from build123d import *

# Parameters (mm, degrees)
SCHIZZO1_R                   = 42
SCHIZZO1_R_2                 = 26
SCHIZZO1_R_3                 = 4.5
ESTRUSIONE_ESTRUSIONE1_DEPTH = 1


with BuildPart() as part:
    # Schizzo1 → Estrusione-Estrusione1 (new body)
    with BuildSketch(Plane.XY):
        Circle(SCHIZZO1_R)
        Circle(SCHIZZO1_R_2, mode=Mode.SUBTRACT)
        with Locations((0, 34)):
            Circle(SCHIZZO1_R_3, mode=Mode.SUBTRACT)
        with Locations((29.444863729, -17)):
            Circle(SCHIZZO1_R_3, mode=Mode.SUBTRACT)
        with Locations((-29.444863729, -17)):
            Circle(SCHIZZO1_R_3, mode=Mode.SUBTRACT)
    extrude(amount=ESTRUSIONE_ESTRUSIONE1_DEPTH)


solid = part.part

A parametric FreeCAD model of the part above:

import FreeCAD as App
import Part
import Sketcher

V = App.Vector

doc = App.newDocument("Part")
body = doc.addObject("PartDesign::Body", "Body")

# Sketch on XY plane
sketch1 = body.newObject("Sketcher::SketchObject", "Sketch")
sketch1.AttachmentSupport = (doc.getObject("XY_Plane"), [""])
sketch1.MapMode = "FlatFace"
sketch1.addGeometry([
    Part.Circle(V(0, 0, 0), V(0, 0, 1), 42),  # 0
    Part.Circle(V(-29.4, -17, 0), V(0, 0, 1), 4.5),  # 1
    Part.Circle(V(29.4, -17, 0), V(0, 0, 1), 4.5),  # 2
    Part.Circle(V(0, 0, 0), V(0, 0, 1), 26),  # 3
    Part.Circle(V(0, 34, 0), V(0, 0, 1), 4.5),  # 4
], False)
sketch1.addConstraint([
    Sketcher.Constraint("Coincident", 0, 3, -1, 1),
    Sketcher.Constraint("Coincident", 3, 3, -1, 1),
    Sketcher.Constraint("Equal", 1, 2),
    Sketcher.Constraint("Equal", 2, 4),
    Sketcher.Constraint("Symmetric", 1, 3, 2, 3, -2),
    Sketcher.Constraint("PointOnObject", 4, 3, -2),
    Sketcher.Constraint("Diameter", 0, 84.0),
    Sketcher.Constraint("Diameter", 1, 9.0),
    Sketcher.Constraint("Diameter", 3, 52.0),
    Sketcher.Constraint("DistanceY", 1, 3, -1, 1, 17.0),
    Sketcher.Constraint("DistanceY", -1, 1, 4, 3, 34.0),
    Sketcher.Constraint("DistanceX", 1, 3, -1, 1, 29.444864),
])
pad1 = body.newObject("PartDesign::Pad", "Pad")
pad1.Profile = sketch1
pad1.Length = 1

doc.recompute()
